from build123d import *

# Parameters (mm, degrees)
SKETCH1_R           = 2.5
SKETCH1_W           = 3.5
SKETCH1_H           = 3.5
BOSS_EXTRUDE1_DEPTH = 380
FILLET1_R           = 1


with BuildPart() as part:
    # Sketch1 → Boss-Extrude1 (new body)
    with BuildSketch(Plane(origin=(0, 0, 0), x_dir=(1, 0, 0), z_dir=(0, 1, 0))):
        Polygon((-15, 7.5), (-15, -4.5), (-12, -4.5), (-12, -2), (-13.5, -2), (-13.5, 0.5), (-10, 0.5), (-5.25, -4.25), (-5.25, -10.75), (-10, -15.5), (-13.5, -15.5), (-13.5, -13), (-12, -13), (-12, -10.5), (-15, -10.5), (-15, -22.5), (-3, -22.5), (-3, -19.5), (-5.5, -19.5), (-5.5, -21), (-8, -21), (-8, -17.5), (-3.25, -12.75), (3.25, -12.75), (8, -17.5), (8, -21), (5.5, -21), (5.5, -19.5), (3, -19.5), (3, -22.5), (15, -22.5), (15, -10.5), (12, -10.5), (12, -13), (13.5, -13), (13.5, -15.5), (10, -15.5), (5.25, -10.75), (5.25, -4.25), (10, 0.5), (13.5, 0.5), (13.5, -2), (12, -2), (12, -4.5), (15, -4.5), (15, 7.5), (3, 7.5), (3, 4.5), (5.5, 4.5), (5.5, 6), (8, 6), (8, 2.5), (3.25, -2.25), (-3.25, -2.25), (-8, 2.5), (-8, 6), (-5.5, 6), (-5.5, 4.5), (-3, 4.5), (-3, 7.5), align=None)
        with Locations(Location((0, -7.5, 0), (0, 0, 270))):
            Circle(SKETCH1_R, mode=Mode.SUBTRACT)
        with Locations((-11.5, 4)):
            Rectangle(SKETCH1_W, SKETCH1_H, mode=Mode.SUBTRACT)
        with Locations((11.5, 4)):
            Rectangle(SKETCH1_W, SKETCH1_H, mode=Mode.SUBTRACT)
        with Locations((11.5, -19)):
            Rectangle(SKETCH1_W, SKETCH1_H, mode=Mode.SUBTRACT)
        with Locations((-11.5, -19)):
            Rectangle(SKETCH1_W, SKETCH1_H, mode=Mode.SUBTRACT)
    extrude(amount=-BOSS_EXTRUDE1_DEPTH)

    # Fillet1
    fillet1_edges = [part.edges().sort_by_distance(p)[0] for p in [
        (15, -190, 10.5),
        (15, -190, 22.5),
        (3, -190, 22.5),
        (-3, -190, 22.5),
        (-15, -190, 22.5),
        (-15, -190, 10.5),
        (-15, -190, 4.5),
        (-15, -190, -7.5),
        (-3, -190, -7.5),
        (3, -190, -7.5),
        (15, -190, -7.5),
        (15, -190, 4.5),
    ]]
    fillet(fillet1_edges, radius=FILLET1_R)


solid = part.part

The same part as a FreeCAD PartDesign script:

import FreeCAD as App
import Part
import Sketcher
from FreeCAD import Vector


def edges_at(feature, points):
    """Names of the edges that pass closest to the given points."""
    edges = feature.Shape.Edges
    near = lambda p: min(range(len(edges)), key=lambda i: edges[i].distToShape(Part.Vertex(*p))[0])
    return sorted({f"Edge{near(p) + 1}" for p in points})

doc = App.newDocument("Part")
body = doc.addObject("PartDesign::Body", "Body")

# Sketch on XZ plane
sketch1 = body.newObject("Sketcher::SketchObject", "Sketch")
sketch1.AttachmentSupport = (doc.getObject("XZ_Plane"), [""])
sketch1.MapMode = "FlatFace"
sketch1.addGeometry(Part.LineSegment(Vector(-15, -7.5, 0), Vector(-15, 4.5, 0)), False)
sketch1.addGeometry(Part.LineSegment(Vector(-15, 4.5, 0), Vector(-12, 4.5, 0)), False)
sketch1.addGeometry(Part.LineSegment(Vector(-12, 4.5, 0), Vector(-12, 2, 0)), False)
sketch1.addGeometry(Part.LineSegment(Vector(-12, 2, 0), Vector(-13.5, 2, 0)), False)
sketch1.addGeometry(Part.LineSegment(Vector(-13.5, 2, 0), Vector(-13.5, -0.5, 0)), False)
sketch1.addGeometry(Part.LineSegment(Vector(-13.5, -0.5, 0), Vector(-10, -0.5, 0)), False)
sketch1.addGeometry(Part.LineSegment(Vector(-10, -0.5, 0), Vector(-5.2, 4.2, 0)), False)
sketch1.addGeometry(Part.LineSegment(Vector(-5.2, 4.2, 0), Vector(-5.2, 10.8, 0)), False)
sketch1.addGeometry(Part.LineSegment(Vector(-5.2, 10.8, 0), Vector(-10, 15.5, 0)), False)
sketch1.addGeometry(Part.LineSegment(Vector(-10, 15.5, 0), Vector(-13.5, 15.5, 0)), False)
sketch1.addGeometry(Part.LineSegment(Vector(-13.5, 15.5, 0), Vector(-13.5, 13, 0)), False)
sketch1.addGeometry(Part.LineSegment(Vector(-13.5, 13, 0), Vector(-12, 13, 0)), False)
sketch1.addGeometry(Part.LineSegment(Vector(-12, 13, 0), Vector(-12, 10.5, 0)), False)
sketch1.addGeometry(Part.LineSegment(Vector(-12, 10.5, 0), Vector(-15, 10.5, 0)), False)
sketch1.addGeometry(Part.LineSegment(Vector(-15, 10.5, 0), Vector(-15, 22.5, 0)), False)
sketch1.addGeometry(Part.LineSegment(Vector(-15, 22.5, 0), Vector(-3, 22.5, 0)), False)
sketch1.addGeometry(Part.LineSegment(Vector(-3, 22.5, 0), Vector(-3, 19.5, 0)), False)
sketch1.addGeometry(Part.LineSegment(Vector(-3, 19.5, 0), Vector(-5.5, 19.5, 0)), False)
sketch1.addGeometry(Part.LineSegment(Vector(-5.5, 19.5, 0), Vector(-5.5, 21, 0)), False)
sketch1.addGeometry(Part.LineSegment(Vector(-5.5, 21, 0), Vector(-8, 21, 0)), False)
sketch1.addGeometry(Part.LineSegment(Vector(-8, 21, 0), Vector(-8, 17.5, 0)), False)
sketch1.addGeometry(Part.LineSegment(Vector(-8, 17.5, 0), Vector(-3.2, 12.8, 0)), False)
sketch1.addGeometry(Part.LineSegment(Vector(-3.2, 12.8, 0), Vector(3.2, 12.8, 0)), False)
sketch1.addGeometry(Part.LineSegment(Vector(3.2, 12.8, 0), Vector(8, 17.5, 0)), False)
sketch1.addGeometry(Part.LineSegment(Vector(8, 17.5, 0), Vector(8, 21, 0)), False)
sketch1.addGeometry(Part.LineSegment(Vector(8, 21, 0), Vector(5.5, 21, 0)), False)
sketch1.addGeometry(Part.LineSegment(Vector(5.5, 21, 0), Vector(5.5, 19.5, 0)), False)
sketch1.addGeometry(Part.LineSegment(Vector(5.5, 19.5, 0), Vector(3, 19.5, 0)), False)
sketch1.addGeometry(Part.LineSegment(Vector(3, 19.5, 0), Vector(3, 22.5, 0)), False)
sketch1.addGeometry(Part.LineSegment(Vector(3, 22.5, 0), Vector(15, 22.5, 0)), False)
sketch1.addGeometry(Part.LineSegment(Vector(15, 22.5, 0), Vector(15, 10.5, 0)), False)
sketch1.addGeometry(Part.LineSegment(Vector(15, 10.5, 0), Vector(12, 10.5, 0)), False)
sketch1.addGeometry(Part.LineSegment(Vector(12, 10.5, 0), Vector(12, 13, 0)), False)
sketch1.addGeometry(Part.LineSegment(Vector(12, 13, 0), Vector(13.5, 13, 0)), False)
sketch1.addGeometry(Part.LineSegment(Vector(13.5, 13, 0), Vector(13.5, 15.5, 0)), False)
sketch1.addGeometry(Part.LineSegment(Vector(13.5, 15.5, 0), Vector(10, 15.5, 0)), False)
sketch1.addGeometry(Part.LineSegment(Vector(10, 15.5, 0), Vector(5.2, 10.8, 0)), False)
sketch1.addGeometry(Part.LineSegment(Vector(5.2, 10.8, 0), Vector(5.2, 4.2, 0)), False)
sketch1.addGeometry(Part.LineSegment(Vector(5.2, 4.2, 0), Vector(10, -0.5, 0)), False)
sketch1.addGeometry(Part.LineSegment(Vector(10, -0.5, 0), Vector(13.5, -0.5, 0)), False)
sketch1.addGeometry(Part.LineSegment(Vector(13.5, -0.5, 0), Vector(13.5, 2, 0)), False)
sketch1.addGeometry(Part.LineSegment(Vector(13.5, 2, 0), Vector(12, 2, 0)), False)
sketch1.addGeometry(Part.LineSegment(Vector(12, 2, 0), Vector(12, 4.5, 0)), False)
sketch1.addGeometry(Part.LineSegment(Vector(12, 4.5, 0), Vector(15, 4.5, 0)), False)
sketch1.addGeometry(Part.LineSegment(Vector(15, 4.5, 0), Vector(15, -7.5, 0)), False)
sketch1.addGeometry(Part.LineSegment(Vector(15, -7.5, 0), Vector(3, -7.5, 0)), False)
sketch1.addGeometry(Part.LineSegment(Vector(3, -7.5, 0), Vector(3, -4.5, 0)), False)
sketch1.addGeometry(Part.LineSegment(Vector(3, -4.5, 0), Vector(5.5, -4.5, 0)), False)
sketch1.addGeometry(Part.LineSegment(Vector(5.5, -4.5, 0), Vector(5.5, -6, 0)), False)
sketch1.addGeometry(Part.LineSegment(Vector(5.5, -6, 0), Vector(8, -6, 0)), False)
sketch1.addGeometry(Part.LineSegment(Vector(8, -6, 0), Vector(8, -2.5, 0)), False)
sketch1.addGeometry(Part.LineSegment(Vector(8, -2.5, 0), Vector(3.2, 2.2, 0)), False)
sketch1.addGeometry(Part.LineSegment(Vector(3.2, 2.2, 0), Vector(-3.2, 2.2, 0)), False)
sketch1.addGeometry(Part.LineSegment(Vector(-3.2, 2.2, 0), Vector(-8, -2.5, 0)), False)
sketch1.addGeometry(Part.LineSegment(Vector(-8, -2.5, 0), Vector(-8, -6, 0)), False)
sketch1.addGeometry(Part.LineSegment(Vector(-8, -6, 0), Vector(-5.5, -6, 0)), False)
sketch1.addGeometry(Part.LineSegment(Vector(-5.5, -6, 0), Vector(-5.5, -4.5, 0)), False)
sketch1.addGeometry(Part.LineSegment(Vector(-5.5, -4.5, 0), Vector(-3, -4.5, 0)), False)
sketch1.addGeometry(Part.LineSegment(Vector(-3, -4.5, 0), Vector(-3, -7.5, 0)), False)
sketch1.addGeometry(Part.LineSegment(Vector(-3, -7.5, 0), Vector(-15, -7.5, 0)), False)
sketch1.addGeometry(Part.LineSegment(Vector(-9.8, 20.8, 0), Vector(-13.2, 20.8, 0)), False)
sketch1.addGeometry(Part.LineSegment(Vector(-13.2, 20.8, 0), Vector(-13.2, 17.2, 0)), False)
sketch1.addGeometry(Part.LineSegment(Vector(-13.2, 17.2, 0), Vector(-9.8, 17.2, 0)), False)
sketch1.addGeometry(Part.LineSegment(Vector(-9.8, 17.2, 0), Vector(-9.8, 20.8, 0)), False)
sketch1.addGeometry(Part.LineSegment(Vector(13.2, 20.8, 0), Vector(9.8, 20.8, 0)), False)
sketch1.addGeometry(Part.LineSegment(Vector(9.8, 20.8, 0), Vector(9.8, 17.2, 0)), False)
sketch1.addGeometry(Part.LineSegment(Vector(9.8, 17.2, 0), Vector(13.2, 17.2, 0)), False)
sketch1.addGeometry(Part.LineSegment(Vector(13.2, 17.2, 0), Vector(13.2, 20.8, 0)), False)
sketch1.addGeometry(Part.LineSegment(Vector(-9.8, -2.2, 0), Vector(-13.2, -2.2, 0)), False)
sketch1.addGeometry(Part.LineSegment(Vector(-13.2, -2.2, 0), Vector(-13.2, -5.8, 0)), False)
sketch1.addGeometry(Part.LineSegment(Vector(-13.2, -5.8, 0), Vector(-9.8, -5.8, 0)), False)
sketch1.addGeometry(Part.LineSegment(Vector(-9.8, -5.8, 0), Vector(-9.8, -2.2, 0)), False)
sketch1.addGeometry(Part.Circle(Vector(0, 7.5, 0), Vector(0, 0, 1), 2.5), False)
sketch1.addGeometry(Part.LineSegment(Vector(13.2, -2.2, 0), Vector(9.8, -2.2, 0)), False)
sketch1.addGeometry(Part.LineSegment(Vector(9.8, -2.2, 0), Vector(9.8, -5.8, 0)), False)
sketch1.addGeometry(Part.LineSegment(Vector(9.8, -5.8, 0), Vector(13.2, -5.8, 0)), False)
sketch1.addGeometry(Part.LineSegment(Vector(13.2, -5.8, 0), Vector(13.2, -2.2, 0)), False)
sketch1.addConstraint(Sketcher.Constraint("Coincident", 0, 2, 1, 1))
sketch1.addConstraint(Sketcher.Constraint("Coincident", 1, 2, 2, 1))
sketch1.addConstraint(Sketcher.Constraint("Coincident", 2, 2, 3, 1))
sketch1.addConstraint(Sketcher.Constraint("Coincident", 3, 2, 4, 1))
sketch1.addConstraint(Sketcher.Constraint("Coincident", 4, 2, 5, 1))
sketch1.addConstraint(Sketcher.Constraint("Coincident", 5, 2, 6, 1))
sketch1.addConstraint(Sketcher.Constraint("Coincident", 6, 2, 7, 1))
sketch1.addConstraint(Sketcher.Constraint("Coincident", 7, 2, 8, 1))
sketch1.addConstraint(Sketcher.Constraint("Coincident", 8, 2, 9, 1))
sketch1.addConstraint(Sketcher.Constraint("Coincident", 9, 2, 10, 1))
sketch1.addConstraint(Sketcher.Constraint("Coincident", 10, 2, 11, 1))
sketch1.addConstraint(Sketcher.Constraint("Coincident", 11, 2, 12, 1))
sketch1.addConstraint(Sketcher.Constraint("Coincident", 12, 2, 13, 1))
sketch1.addConstraint(Sketcher.Constraint("Coincident", 13, 2, 14, 1))
sketch1.addConstraint(Sketcher.Constraint("Coincident", 14, 2, 15, 1))
sketch1.addConstraint(Sketcher.Constraint("Coincident", 15, 2, 16, 1))
sketch1.addConstraint(Sketcher.Constraint("Coincident", 16, 2, 17, 1))
sketch1.addConstraint(Sketcher.Constraint("Coincident", 17, 2, 18, 1))
sketch1.addConstraint(Sketcher.Constraint("Coincident", 18, 2, 19, 1))
sketch1.addConstraint(Sketcher.Constraint("Coincident", 19, 2, 20, 1))
sketch1.addConstraint(Sketcher.Constraint("Coincident", 20, 2, 21, 1))
sketch1.addConstraint(Sketcher.Constraint("Coincident", 21, 2, 22, 1))
sketch1.addConstraint(Sketcher.Constraint("Coincident", 22, 2, 23, 1))
sketch1.addConstraint(Sketcher.Constraint("Coincident", 23, 2, 24, 1))
sketch1.addConstraint(Sketcher.Constraint("Coincident", 24, 2, 25, 1))
sketch1.addConstraint(Sketcher.Constraint("Coincident", 25, 2, 26, 1))
sketch1.addConstraint(Sketcher.Constraint("Coincident", 26, 2, 27, 1))
sketch1.addConstraint(Sketcher.Constraint("Coincident", 27, 2, 28, 1))
sketch1.addConstraint(Sketcher.Constraint("Coincident", 28, 2, 29, 1))
sketch1.addConstraint(Sketcher.Constraint("Coincident", 29, 2, 30, 1))
sketch1.addConstraint(Sketcher.Constraint("Coincident", 30, 2, 31, 1))
sketch1.addConstraint(Sketcher.Constraint("Coincident", 31, 2, 32, 1))
sketch1.addConstraint(Sketcher.Constraint("Coincident", 32, 2, 33, 1))
sketch1.addConstraint(Sketcher.Constraint("Coincident", 33, 2, 34, 1))
sketch1.addConstraint(Sketcher.Constraint("Coincident", 34, 2, 35, 1))
sketch1.addConstraint(Sketcher.Constraint("Coincident", 35, 2, 36, 1))
sketch1.addConstraint(Sketcher.Constraint("Coincident", 36, 2, 37, 1))
sketch1.addConstraint(Sketcher.Constraint("Coincident", 37, 2, 38, 1))
sketch1.addConstraint(Sketcher.Constraint("Coincident", 38, 2, 39, 1))
sketch1.addConstraint(Sketcher.Constraint("Coincident", 39, 2, 40, 1))
sketch1.addConstraint(Sketcher.Constraint("Coincident", 40, 2, 41, 1))
sketch1.addConstraint(Sketcher.Constraint("Coincident", 41, 2, 42, 1))
sketch1.addConstraint(Sketcher.Constraint("Coincident", 42, 2, 43, 1))
sketch1.addConstraint(Sketcher.Constraint("Coincident", 43, 2, 44, 1))
sketch1.addConstraint(Sketcher.Constraint("Coincident", 44, 2, 45, 1))
sketch1.addConstraint(Sketcher.Constraint("Coincident", 45, 2, 46, 1))
sketch1.addConstraint(Sketcher.Constraint("Coincident", 46, 2, 47, 1))
sketch1.addConstraint(Sketcher.Constraint("Coincident", 47, 2, 48, 1))
sketch1.addConstraint(Sketcher.Constraint("Coincident", 48, 2, 49, 1))
sketch1.addConstraint(Sketcher.Constraint("Coincident", 49, 2, 50, 1))
sketch1.addConstraint(Sketcher.Constraint("Coincident", 50, 2, 51, 1))
sketch1.addConstraint(Sketcher.Constraint("Coincident", 51, 2, 52, 1))
sketch1.addConstraint(Sketcher.Constraint("Coincident", 52, 2, 53, 1))
sketch1.addConstraint(Sketcher.Constraint("Coincident", 53, 2, 54, 1))
sketch1.addConstraint(Sketcher.Constraint("Coincident", 54, 2, 55, 1))
sketch1.addConstraint(Sketcher.Constraint("Coincident", 55, 2, 56, 1))
sketch1.addConstraint(Sketcher.Constraint("Coincident", 56, 2, 57, 1))
sketch1.addConstraint(Sketcher.Constraint("Coincident", 57, 2, 58, 1))
sketch1.addConstraint(Sketcher.Constraint("Coincident", 58, 2, 59, 1))
sketch1.addConstraint(Sketcher.Constraint("Coincident", 59, 2, 0, 1))
sketch1.addConstraint(Sketcher.Constraint("Coincident", 60, 2, 61, 1))
sketch1.addConstraint(Sketcher.Constraint("Coincident", 61, 2, 62, 1))
sketch1.addConstraint(Sketcher.Constraint("Coincident", 62, 2, 63, 1))
sketch1.addConstraint(Sketcher.Constraint("Coincident", 63, 2, 60, 1))
sketch1.addConstraint(Sketcher.Constraint("Coincident", 64, 2, 65, 1))
sketch1.addConstraint(Sketcher.Constraint("Coincident", 65, 2, 66, 1))
sketch1.addConstraint(Sketcher.Constraint("Coincident", 66, 2, 67, 1))
sketch1.addConstraint(Sketcher.Constraint("Coincident", 67, 2, 64, 1))
sketch1.addConstraint(Sketcher.Constraint("Coincident", 68, 2, 69, 1))
sketch1.addConstraint(Sketcher.Constraint("Coincident", 69, 2, 70, 1))
sketch1.addConstraint(Sketcher.Constraint("Coincident", 70, 2, 71, 1))
sketch1.addConstraint(Sketcher.Constraint("Coincident", 71, 2, 68, 1))
sketch1.addConstraint(Sketcher.Constraint("Coincident", 73, 2, 74, 1))
sketch1.addConstraint(Sketcher.Constraint("Coincident", 74, 2, 75, 1))
sketch1.addConstraint(Sketcher.Constraint("Coincident", 75, 2, 76, 1))
sketch1.addConstraint(Sketcher.Constraint("Coincident", 76, 2, 73, 1))
sketch1.addConstraint(Sketcher.Constraint("Vertical", 0))
sketch1.addConstraint(Sketcher.Constraint("Horizontal", 1))
sketch1.addConstraint(Sketcher.Constraint("Vertical", 2))
sketch1.addConstraint(Sketcher.Constraint("Horizontal", 3))
sketch1.addConstraint(Sketcher.Constraint("Vertical", 4))
sketch1.addConstraint(Sketcher.Constraint("Horizontal", 5))
sketch1.addConstraint(Sketcher.Constraint("Vertical", 7))
sketch1.addConstraint(Sketcher.Constraint("Horizontal", 9))
sketch1.addConstraint(Sketcher.Constraint("Vertical", 10))
sketch1.addConstraint(Sketcher.Constraint("Horizontal", 11))
sketch1.addConstraint(Sketcher.Constraint("Vertical", 12))
sketch1.addConstraint(Sketcher.Constraint("Horizontal", 13))
sketch1.addConstraint(Sketcher.Constraint("Vertical", 14))
sketch1.addConstraint(Sketcher.Constraint("Horizontal", 15))
sketch1.addConstraint(Sketcher.Constraint("Vertical", 16))
sketch1.addConstraint(Sketcher.Constraint("Horizontal", 17))
sketch1.addConstraint(Sketcher.Constraint("Vertical", 18))
sketch1.addConstraint(Sketcher.Constraint("Horizontal", 19))
sketch1.addConstraint(Sketcher.Constraint("Vertical", 20))
sketch1.addConstraint(Sketcher.Constraint("Horizontal", 22))
sketch1.addConstraint(Sketcher.Constraint("Vertical", 24))
sketch1.addConstraint(Sketcher.Constraint("Horizontal", 25))
sketch1.addConstraint(Sketcher.Constraint("Vertical", 26))
sketch1.addConstraint(Sketcher.Constraint("Horizontal", 27))
sketch1.addConstraint(Sketcher.Constraint("Vertical", 28))
sketch1.addConstraint(Sketcher.Constraint("Horizontal", 29))
sketch1.addConstraint(Sketcher.Constraint("Vertical", 30))
sketch1.addConstraint(Sketcher.Constraint("Horizontal", 31))
sketch1.addConstraint(Sketcher.Constraint("Vertical", 32))
sketch1.addConstraint(Sketcher.Constraint("Horizontal", 33))
sketch1.addConstraint(Sketcher.Constraint("Vertical", 34))
sketch1.addConstraint(Sketcher.Constraint("Horizontal", 35))
sketch1.addConstraint(Sketcher.Constraint("Vertical", 37))
sketch1.addConstraint(Sketcher.Constraint("Horizontal", 39))
sketch1.addConstraint(Sketcher.Constraint("Vertical", 40))
sketch1.addConstraint(Sketcher.Constraint("Horizontal", 41))
sketch1.addConstraint(Sketcher.Constraint("Vertical", 42))
sketch1.addConstraint(Sketcher.Constraint("Horizontal", 43))
sketch1.addConstraint(Sketcher.Constraint("Vertical", 44))
sketch1.addConstraint(Sketcher.Constraint("Horizontal", 45))
sketch1.addConstraint(Sketcher.Constraint("Vertical", 46))
sketch1.addConstraint(Sketcher.Constraint("Horizontal", 47))
sketch1.addConstraint(Sketcher.Constraint("Vertical", 48))
sketch1.addConstraint(Sketcher.Constraint("Horizontal", 49))
sketch1.addConstraint(Sketcher.Constraint("Vertical", 50))
sketch1.addConstraint(Sketcher.Constraint("Horizontal", 52))
sketch1.addConstraint(Sketcher.Constraint("Vertical", 54))
sketch1.addConstraint(Sketcher.Constraint("Horizontal", 55))
sketch1.addConstraint(Sketcher.Constraint("Vertical", 56))
sketch1.addConstraint(Sketcher.Constraint("Horizontal", 57))
sketch1.addConstraint(Sketcher.Constraint("Vertical", 58))
sketch1.addConstraint(Sketcher.Constraint("Horizontal", 59))
sketch1.addConstraint(Sketcher.Constraint("Horizontal", 60))
sketch1.addConstraint(Sketcher.Constraint("Vertical", 61))
sketch1.addConstraint(Sketcher.Constraint("Horizontal", 62))
sketch1.addConstraint(Sketcher.Constraint("Vertical", 63))
sketch1.addConstraint(Sketcher.Constraint("Horizontal", 64))
sketch1.addConstraint(Sketcher.Constraint("Vertical", 65))
sketch1.addConstraint(Sketcher.Constraint("Horizontal", 66))
sketch1.addConstraint(Sketcher.Constraint("Vertical", 67))
sketch1.addConstraint(Sketcher.Constraint("Horizontal", 68))
sketch1.addConstraint(Sketcher.Constraint("Vertical", 69))
sketch1.addConstraint(Sketcher.Constraint("Horizontal", 70))
sketch1.addConstraint(Sketcher.Constraint("Vertical", 71))
sketch1.addConstraint(Sketcher.Constraint("Horizontal", 73))
sketch1.addConstraint(Sketcher.Constraint("Vertical", 74))
sketch1.addConstraint(Sketcher.Constraint("Horizontal", 75))
sketch1.addConstraint(Sketcher.Constraint("Vertical", 76))
sketch1.addConstraint(Sketcher.Constraint("Symmetric", 20, 2, 23, 2, -2))
sketch1.addConstraint(Sketcher.Constraint("Symmetric", 18, 2, 25, 2, -2))
sketch1.addConstraint(Sketcher.Constraint("Symmetric", 16, 2, 27, 2, -2))
sketch1.addConstraint(Sketcher.Constraint("Symmetric", 14, 2, 29, 2, -2))
sketch1.addConstraint(Sketcher.Constraint("Symmetric", 12, 2, 31, 2, -2))
sketch1.addConstraint(Sketcher.Constraint("Symmetric", 10, 2, 33, 2, -2))
sketch1.addConstraint(Sketcher.Constraint("Symmetric", 8, 2, 35, 2, -2))
sketch1.addConstraint(Sketcher.Constraint("Symmetric", 7, 2, 36, 2, -2))
sketch1.addConstraint(Sketcher.Constraint("Symmetric", 5, 2, 38, 2, -2))
sketch1.addConstraint(Sketcher.Constraint("Symmetric", 3, 2, 40, 2, -2))
sketch1.addConstraint(Sketcher.Constraint("Symmetric", 1, 2, 42, 2, -2))
sketch1.addConstraint(Sketcher.Constraint("Symmetric", 50, 2, 53, 2, -2))
sketch1.addConstraint(Sketcher.Constraint("Symmetric", 48, 2, 55, 2, -2))
sketch1.addConstraint(Sketcher.Constraint("Symmetric", 46, 2, 57, 2, -2))
sketch1.addConstraint(Sketcher.Constraint("Symmetric", 44, 2, 59, 2, -2))
sketch1.addConstraint(Sketcher.Constraint("Symmetric", 63, 2, 64, 2, -2))
sketch1.addConstraint(Sketcher.Constraint("Symmetric", 61, 2, 66, 2, -2))
sketch1.addConstraint(Sketcher.Constraint("Symmetric", 71, 2, 73, 2, -2))
sketch1.addConstraint(Sketcher.Constraint("Symmetric", 69, 2, 75, 2, -2))
sketch1.addConstraint(Sketcher.Constraint("PointOnObject", 72, 3, -2))
sketch1.addConstraint(Sketcher.Constraint("Perpendicular", 6, 8))
sketch1.addConstraint(Sketcher.Constraint("Parallel", 8, 21))
sketch1.addConstraint(Sketcher.Constraint("Perpendicular", 21, 23))
sketch1.addConstraint(Sketcher.Constraint("Parallel", 23, 36))
sketch1.addConstraint(Sketcher.Constraint("Perpendicular", 36, 38))
sketch1.addConstraint(Sketcher.Constraint("Parallel", 38, 51))
sketch1.addConstraint(Sketcher.Constraint("Perpendicular", 51, 53))
sketch1.addConstraint(Sketcher.Constraint("Vertical", 5, 2, 8, 2))
sketch1.addConstraint(Sketcher.Constraint("Vertical", 4, 2, 9, 2))
sketch1.addConstraint(Sketcher.Constraint("Vertical", 2, 2, 11, 2))
sketch1.addConstraint(Sketcher.Constraint("Vertical", 0, 2, 13, 2))
sketch1.addConstraint(Sketcher.Constraint("Vertical", 28, 2, 45, 2))
sketch1.addConstraint(Sketcher.Constraint("Vertical", 26, 2, 47, 2))
sketch1.addConstraint(Sketcher.Constraint("Vertical", 24, 2, 49, 2))
sketch1.addConstraint(Sketcher.Constraint("Vertical", 22, 2, 51, 2))
sketch1.addConstraint(Sketcher.Constraint("Vertical", 61, 2, 68, 2))
sketch1.addConstraint(Sketcher.Constraint("Vertical", 63, 2, 70, 2))
sketch1.addConstraint(Sketcher.Constraint("Equal", 17, 19))
sketch1.addConstraint(Sketcher.Constraint("Equal", 39, 60))
sketch1.addConstraint(Sketcher.Constraint("Equal", 59, 0))
sketch1.addConstraint(Sketcher.Constraint("Equal", 57, 2))
sketch1.addConstraint(Sketcher.Constraint("Equal", 2, 4))
sketch1.addConstraint(Sketcher.Constraint("Equal", 52, 7))
sketch1.addConstraint(Sketcher.Constraint("Equal", 4, 10))
sketch1.addConstraint(Sketcher.Constraint("Equal", 10, 12))
sketch1.addConstraint(Sketcher.Constraint("Equal", 0, 14))
sketch1.addConstraint(Sketcher.Constraint("Equal", 43, 16))
sketch1.addConstraint(Sketcher.Constraint("Equal", 41, 18))
sketch1.addConstraint(Sketcher.Constraint("Equal", 75, 20))
sketch1.addConstraint(Sketcher.Constraint("Equal", 28, 46))
sketch1.addConstraint(Sketcher.Constraint("Equal", 26, 48))
sketch1.addConstraint(Sketcher.Constraint("Equal", 24, 50))
sketch1.addConstraint(Sketcher.Constraint("Equal", 54, 61))
sketch1.addConstraint(Sketcher.Constraint("Equal", 67, 69))
sketch1.addConstraint(Sketcher.Constraint("Equal", 8, 21))
sketch1.addConstraint(Sketcher.Constraint("Diameter", 72, 5.0))
sketch1.addConstraint(Sketcher.Constraint("DistanceX", 1, 1, 1, 2, 3.0))
sketch1.addConstraint(Sketcher.Constraint("DistanceX", 15, 1, 15, 2, 12.0))
sketch1.addConstraint(Sketcher.Constraint("DistanceX", 3, 2, 3, 1, 1.5))
sketch1.addConstraint(Sketcher.Constraint("DistanceX", 5, 1, 5, 2, 3.5))
sketch1.addConstraint(Sketcher.Constraint("DistanceX", 17, 2, 17, 1, 2.5))
sketch1.addConstraint(Sketcher.Constraint("DistanceX", 22, 1, 22, 2, 6.5))
sketch1.addConstraint(Sketcher.Constraint("DistanceX", 0, 2, -1, 1, 15.0))
sketch1.addConstraint(Sketcher.Constraint("DistanceY", -1, 1, 2, 2, 2.0))
sketch1.addConstraint(Sketcher.Constraint("DistanceY", -1, 1, 72, 3, 7.5))
sketch1.addConstraint(Sketcher.Constraint("DistanceX", 60, 2, -1, 1, 13.25))
sketch1.addConstraint(Sketcher.Constraint("DistanceY", -1, 1, 60, 2, 20.75))
sketch1.addConstraint(Sketcher.Constraint("DistanceY", 68, 2, -1, 1, 2.25))
pad1 = body.newObject("PartDesign::Pad", "Pad")
pad1.Profile = sketch1
pad1.Length = 380
doc.recompute()

fillet = body.newObject("PartDesign::Fillet", "Fillet")
fillet.Base = (pad1, edges_at(pad1, [
    (15, -190, 10.5),
    (15, -190, 22.5),
    (3, -190, 22.5),
    (-3, -190, 22.5),
    (-15, -190, 22.5),
    (-15, -190, 10.5),
    (-15, -190, 4.5),
    (-15, -190, -7.5),
    (-3, -190, -7.5),
    (3, -190, -7.5),
    (15, -190, -7.5),
    (15, -190, 4.5),
]))
fillet.Radius = 1

doc.recompute()
